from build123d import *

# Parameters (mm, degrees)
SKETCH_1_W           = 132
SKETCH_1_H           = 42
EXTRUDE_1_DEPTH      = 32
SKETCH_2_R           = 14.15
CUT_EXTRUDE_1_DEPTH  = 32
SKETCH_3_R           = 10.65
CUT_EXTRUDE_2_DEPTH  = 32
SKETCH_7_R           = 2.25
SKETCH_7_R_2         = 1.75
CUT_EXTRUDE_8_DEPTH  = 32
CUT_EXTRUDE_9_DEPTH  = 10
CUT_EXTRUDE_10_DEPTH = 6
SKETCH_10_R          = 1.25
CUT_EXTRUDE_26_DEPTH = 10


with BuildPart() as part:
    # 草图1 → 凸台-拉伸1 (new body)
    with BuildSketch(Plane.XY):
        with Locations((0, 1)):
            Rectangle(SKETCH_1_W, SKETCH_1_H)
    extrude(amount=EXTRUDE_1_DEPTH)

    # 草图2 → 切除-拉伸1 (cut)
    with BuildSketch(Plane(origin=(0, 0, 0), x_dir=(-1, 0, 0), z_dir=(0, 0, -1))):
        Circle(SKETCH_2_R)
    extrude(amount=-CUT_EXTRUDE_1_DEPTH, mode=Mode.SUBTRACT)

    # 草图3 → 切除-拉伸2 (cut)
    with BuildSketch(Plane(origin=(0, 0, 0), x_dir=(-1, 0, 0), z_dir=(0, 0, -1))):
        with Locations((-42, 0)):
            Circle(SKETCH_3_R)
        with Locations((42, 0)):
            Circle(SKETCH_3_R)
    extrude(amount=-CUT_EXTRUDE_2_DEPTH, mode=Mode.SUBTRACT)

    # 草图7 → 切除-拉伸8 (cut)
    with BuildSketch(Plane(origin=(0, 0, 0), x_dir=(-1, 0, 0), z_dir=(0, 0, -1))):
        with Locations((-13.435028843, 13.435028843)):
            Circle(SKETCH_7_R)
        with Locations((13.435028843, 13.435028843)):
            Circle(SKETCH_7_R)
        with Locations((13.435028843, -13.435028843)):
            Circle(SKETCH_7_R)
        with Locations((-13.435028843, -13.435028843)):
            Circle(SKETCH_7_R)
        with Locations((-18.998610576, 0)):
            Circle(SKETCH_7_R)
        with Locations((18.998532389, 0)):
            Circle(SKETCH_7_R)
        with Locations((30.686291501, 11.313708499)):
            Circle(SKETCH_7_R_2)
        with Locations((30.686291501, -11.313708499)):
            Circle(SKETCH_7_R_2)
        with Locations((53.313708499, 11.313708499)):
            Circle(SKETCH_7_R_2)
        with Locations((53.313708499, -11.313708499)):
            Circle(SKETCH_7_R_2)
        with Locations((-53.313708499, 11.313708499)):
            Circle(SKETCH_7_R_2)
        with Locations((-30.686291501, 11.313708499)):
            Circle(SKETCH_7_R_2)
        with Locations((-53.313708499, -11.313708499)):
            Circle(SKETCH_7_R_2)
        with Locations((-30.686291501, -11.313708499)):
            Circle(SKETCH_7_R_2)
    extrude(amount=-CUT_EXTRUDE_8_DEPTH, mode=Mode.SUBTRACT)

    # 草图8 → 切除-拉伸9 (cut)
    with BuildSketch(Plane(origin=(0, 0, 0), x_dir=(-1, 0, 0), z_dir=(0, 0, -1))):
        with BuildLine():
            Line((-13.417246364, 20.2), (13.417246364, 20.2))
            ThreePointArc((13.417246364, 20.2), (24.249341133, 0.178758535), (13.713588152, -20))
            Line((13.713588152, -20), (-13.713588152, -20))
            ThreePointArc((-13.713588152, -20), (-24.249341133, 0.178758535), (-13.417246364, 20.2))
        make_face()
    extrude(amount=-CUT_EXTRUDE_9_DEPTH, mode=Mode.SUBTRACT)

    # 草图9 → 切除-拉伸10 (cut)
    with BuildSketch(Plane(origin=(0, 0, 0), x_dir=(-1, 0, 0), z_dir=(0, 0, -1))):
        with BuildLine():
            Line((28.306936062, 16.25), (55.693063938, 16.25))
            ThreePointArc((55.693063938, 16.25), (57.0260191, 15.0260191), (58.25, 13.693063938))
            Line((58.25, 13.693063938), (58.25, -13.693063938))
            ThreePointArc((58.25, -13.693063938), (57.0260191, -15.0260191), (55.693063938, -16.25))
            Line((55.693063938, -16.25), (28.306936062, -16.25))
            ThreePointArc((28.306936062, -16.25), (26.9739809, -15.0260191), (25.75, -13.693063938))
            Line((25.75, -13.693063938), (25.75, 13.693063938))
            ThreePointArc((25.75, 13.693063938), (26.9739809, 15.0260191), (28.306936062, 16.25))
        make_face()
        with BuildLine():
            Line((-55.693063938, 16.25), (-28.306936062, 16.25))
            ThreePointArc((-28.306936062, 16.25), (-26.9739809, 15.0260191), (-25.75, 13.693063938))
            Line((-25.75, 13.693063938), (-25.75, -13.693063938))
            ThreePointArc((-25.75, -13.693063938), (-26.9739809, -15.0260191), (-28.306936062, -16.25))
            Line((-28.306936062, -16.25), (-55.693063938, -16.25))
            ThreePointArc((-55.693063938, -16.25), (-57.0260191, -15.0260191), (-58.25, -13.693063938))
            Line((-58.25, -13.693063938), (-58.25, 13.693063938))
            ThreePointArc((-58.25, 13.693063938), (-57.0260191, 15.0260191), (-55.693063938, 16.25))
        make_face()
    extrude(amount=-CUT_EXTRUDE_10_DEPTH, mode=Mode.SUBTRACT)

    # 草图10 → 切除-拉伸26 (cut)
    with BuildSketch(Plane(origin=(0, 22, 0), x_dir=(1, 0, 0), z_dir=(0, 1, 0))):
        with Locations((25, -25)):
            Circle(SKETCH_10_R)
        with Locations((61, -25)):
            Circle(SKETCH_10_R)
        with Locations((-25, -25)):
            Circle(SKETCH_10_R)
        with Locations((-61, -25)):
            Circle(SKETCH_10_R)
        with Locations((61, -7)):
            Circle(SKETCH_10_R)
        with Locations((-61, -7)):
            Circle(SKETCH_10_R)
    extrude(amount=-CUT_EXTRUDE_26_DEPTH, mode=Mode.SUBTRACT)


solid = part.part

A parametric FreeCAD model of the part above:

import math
import FreeCAD as App
import Part
import Sketcher
Q = App.Units.Quantity


def add_polygon(sketch, points):
    """Adds a closed chain of lines whose ends are joined by coincident constraints."""
    first, n = sketch.GeometryCount, len(points)
    for a, b in zip(points, points[1:] + points[:1]):
        sketch.addGeometry(Part.LineSegment(App.Vector(*a, 0), App.Vector(*b, 0)), False)
    for i in range(n):
        sketch.addConstraint(Sketcher.Constraint("Coincident", first + i, 2, first + (i + 1) % n, 1))

doc = App.newDocument("Part")
body = doc.addObject("PartDesign::Body", "Body")

# Sketch on XY plane
sketch1 = body.newObject("Sketcher::SketchObject", "Sketch")
sketch1.AttachmentSupport = (doc.getObject("XY_Plane"), [""])
sketch1.MapMode = "FlatFace"
add_polygon(sketch1, [(-66, 22), (-66, -20), (66, -20), (66, 22)])  # lines 0-3
sketch1.addConstraint([
    Sketcher.Constraint("Vertical", 0),
    Sketcher.Constraint("Horizontal", 1),
    Sketcher.Constraint("Vertical", 2),
    Sketcher.Constraint("Horizontal", 3),
    Sketcher.Constraint("DistanceX", 1, 1, 1, 2, Q("132 mm")),
    Sketcher.Constraint("DistanceY", 0, 2, 0, 1, Q("42 mm")),
    Sketcher.Constraint("DistanceX", 0, 2, -1, 1, Q("66 mm")),
    Sketcher.Constraint("DistanceY", 0, 2, -1, 1, Q("20 mm")),
])
pad1 = body.newObject("PartDesign::Pad", "Pad")
pad1.Profile = sketch1
pad1.Length = 32

# Sketch on XY plane
sketch2 = body.newObject("Sketcher::SketchObject", "Sketch001")
sketch2.AttachmentSupport = (doc.getObject("XY_Plane"), [""])
sketch2.MapMode = "FlatFace"
sketch2.addGeometry(Part.Circle(App.Vector(0, 0, 0), App.Vector(0, 0, 1), 14.15), False)
sketch2.addConstraint([
    Sketcher.Constraint("Coincident", 0, 3, -1, 1),
    Sketcher.Constraint("Diameter", 0, Q("28.3 mm")),
])
pocket1 = body.newObject("PartDesign::Pocket", "Pocket")
pocket1.Profile = sketch2
pocket1.Length = 32
pocket1.Reversed = True

# Sketch on XY plane
sketch3 = body.newObject("Sketcher::SketchObject", "Sketch002")
sketch3.AttachmentSupport = (doc.getObject("XY_Plane"), [""])
sketch3.MapMode = "FlatFace"
sketch3.addGeometry([
    Part.Circle(App.Vector(42, 0, 0), App.Vector(0, 0, 1), 10.65),
    Part.Circle(App.Vector(-42, 0, 0), App.Vector(0, 0, 1), 10.65),
], False)
sketch3.addConstraint([
    Sketcher.Constraint("Equal", 0, 1),
    Sketcher.Constraint("Symmetric", 0, 3, 1, 3, -1, 1),
    Sketcher.Constraint("PointOnObject", 0, 3, -1),
    Sketcher.Constraint("Diameter", 0, Q("21.3 mm")),
    Sketcher.Constraint("DistanceX", -1, 1, 0, 3, Q("42 mm")),
])
pocket2 = body.newObject("PartDesign::Pocket", "Pocket001")
pocket2.Profile = sketch3
pocket2.Length = 32
pocket2.Reversed = True

# Sketch on XY plane
sketch4 = body.newObject("Sketcher::SketchObject", "Sketch003")
sketch4.AttachmentSupport = (doc.getObject("XY_Plane"), [""])
sketch4.MapMode = "FlatFace"
sketch4.addGeometry([
    Part.Circle(App.Vector(13.435029, 13.435029, 0), App.Vector(0, 0, 1), 2.25),  # 0
    Part.Circle(App.Vector(-13.435029, 13.435029, 0), App.Vector(0, 0, 1), 2.25),  # 1
    Part.Circle(App.Vector(-13.435029, -13.435029, 0), App.Vector(0, 0, 1), 2.25),  # 2
    Part.Circle(App.Vector(13.435029, -13.435029, 0), App.Vector(0, 0, 1), 2.25),  # 3
    Part.Circle(App.Vector(18.998611, 0, 0), App.Vector(0, 0, 1), 2.25),  # 4
    Part.Circle(App.Vector(-18.998532, 0, 0), App.Vector(0, 0, 1), 2.25),  # 5
    Part.Circle(App.Vector(-30.686292, 11.313708, 0), App.Vector(0, 0, 1), 1.75),  # 6
    Part.Circle(App.Vector(-30.686292, -11.313708, 0), App.Vector(0, 0, 1), 1.75),  # 7
    Part.Circle(App.Vector(-53.313708, 11.313708, 0), App.Vector(0, 0, 1), 1.75),  # 8
    Part.Circle(App.Vector(-53.313708, -11.313708, 0), App.Vector(0, 0, 1), 1.75),  # 9
    Part.Circle(App.Vector(53.313708, 11.313708, 0), App.Vector(0, 0, 1), 1.75),  # 10
    Part.Circle(App.Vector(30.686292, 11.313708, 0), App.Vector(0, 0, 1), 1.75),  # 11
    Part.Circle(App.Vector(53.313708, -11.313708, 0), App.Vector(0, 0, 1), 1.75),  # 12
    Part.Circle(App.Vector(30.686292, -11.313708, 0), App.Vector(0, 0, 1), 1.75),  # 13
], False)
sketch4.addConstraint([
    Sketcher.Constraint("Equal", 0, 1),
    Sketcher.Constraint("Equal", 1, 2),
    Sketcher.Constraint("Equal", 2, 3),
    Sketcher.Constraint("Equal", 3, 4),
    Sketcher.Constraint("Equal", 4, 5),
    Sketcher.Constraint("Equal", 6, 7),
    Sketcher.Constraint("Equal", 7, 8),
    Sketcher.Constraint("Equal", 8, 9),
    Sketcher.Constraint("Equal", 9, 10),
    Sketcher.Constraint("Equal", 10, 11),
    Sketcher.Constraint("Equal", 11, 12),
    Sketcher.Constraint("Equal", 12, 13),
    Sketcher.Constraint("Symmetric", 0, 3, 2, 3, -1, 1),
    Sketcher.Constraint("Symmetric", 1, 3, 3, 3, -1, 1),
    Sketcher.Constraint("Symmetric", 9, 3, 10, 3, -1, 1),
    Sketcher.Constraint("Symmetric", 7, 3, 11, 3, -1, 1),
    Sketcher.Constraint("Symmetric", 8, 3, 12, 3, -1, 1),
    Sketcher.Constraint("Symmetric", 6, 3, 13, 3, -1, 1),
    Sketcher.Constraint("Symmetric", 0, 3, 1, 3, -2),
    Sketcher.Constraint("Symmetric", 8, 3, 10, 3, -2),
    Sketcher.Constraint("Symmetric", 6, 3, 11, 3, -2),
    Sketcher.Constraint("PointOnObject", 4, 3, -1),
    Sketcher.Constraint("PointOnObject", 5, 3, -1),
    Sketcher.Constraint("Horizontal", 6, 3, 8, 3),
    Sketcher.Constraint("Diameter", 0, Q("4.5 mm")),
    Sketcher.Constraint("Diameter", 6, Q("3.5 mm")),
    Sketcher.Constraint("DistanceX", -1, 1, 0, 3, Q("13.435029 mm")),
    Sketcher.Constraint("DistanceY", -1, 1, 0, 3, Q("13.435029 mm")),
    Sketcher.Constraint("DistanceX", -1, 1, 4, 3, Q("18.998611 mm")),
    Sketcher.Constraint("DistanceX", 6, 3, -1, 1, Q("30.686292 mm")),
    Sketcher.Constraint("DistanceY", -1, 1, 6, 3, Q("11.313708 mm")),
    Sketcher.Constraint("DistanceX", 8, 3, -1, 1, Q("53.313708 mm")),
    Sketcher.Constraint("DistanceX", 5, 3, 0, 3, Q("32.433561 mm")),
])
pocket3 = body.newObject("PartDesign::Pocket", "Pocket002")
pocket3.Profile = sketch4
pocket3.Length = 32
pocket3.Reversed = True

# Sketch on XY plane
sketch5 = body.newObject("Sketcher::SketchObject", "Sketch004")
sketch5.AttachmentSupport = (doc.getObject("XY_Plane"), [""])
sketch5.MapMode = "FlatFace"
sketch5.addGeometry([
    Part.LineSegment(App.Vector(-13.417246, 20.2, 0), App.Vector(13.417246, 20.2, 0)),
    Part.ArcOfCircle(Part.Circle(App.Vector(0, 0, 0), App.Vector(0, 0, 1), 24.25), math.radians(-55.56237), math.radians(56.407088)),
    Part.LineSegment(App.Vector(13.713588, -20, 0), App.Vector(-13.713588, -20, 0)),
    Part.ArcOfCircle(Part.Circle(App.Vector(0, 0, 0), App.Vector(0, 0, 1), 24.25), math.radians(123.592912), math.radians(235.56237)),
], False)
sketch5.addConstraint([
    Sketcher.Constraint("Coincident", 0, 2, 1, 2),
    Sketcher.Constraint("Coincident", 1, 1, 2, 1),
    Sketcher.Constraint("Coincident", 2, 2, 3, 2),
    Sketcher.Constraint("Coincident", 3, 1, 0, 1),
    Sketcher.Constraint("Horizontal", 0),
    Sketcher.Constraint("Horizontal", 2),
    Sketcher.Constraint("Coincident", 1, 3, -1, 1),
    Sketcher.Constraint("Coincident", 3, 3, -1, 1),
    Sketcher.Constraint("Equal", 1, 3),
    Sketcher.Constraint("Radius", 1, Q("24.25 mm")),
    Sketcher.Constraint("DistanceY", 1, 1, -1, 1, Q("20 mm")),
    Sketcher.Constraint("DistanceY", -1, 1, 0, 2, Q("20.2 mm")),
])
pocket4 = body.newObject("PartDesign::Pocket", "Pocket003")
pocket4.Profile = sketch5
pocket4.Length = 10
pocket4.Reversed = True

# Sketch on XY plane
sketch6 = body.newObject("Sketcher::SketchObject", "Sketch005")
sketch6.AttachmentSupport = (doc.getObject("XY_Plane"), [""])
sketch6.MapMode = "FlatFace"
sketch6.addGeometry([
    Part.LineSegment(App.Vector(-55.693064, 16.25, 0), App.Vector(-28.306936, 16.25, 0)),  # 0
    Part.ArcOfCircle(Part.Circle(App.Vector(-42, 0, 0), App.Vector(0, 0, 1), 21.25), math.radians(40.119167), math.radians(49.880833)),  # 1
    Part.LineSegment(App.Vector(-25.75, 13.693064, 0), App.Vector(-25.75, -13.693064, 0)),  # 2
    Part.ArcOfCircle(Part.Circle(App.Vector(-42, 0, 0), App.Vector(0, 0, 1), 21.25), math.radians(-49.880833), math.radians(-40.119167)),  # 3
    Part.LineSegment(App.Vector(-28.306936, -16.25, 0), App.Vector(-55.693064, -16.25, 0)),  # 4
    Part.ArcOfCircle(Part.Circle(App.Vector(-42, 0, 0), App.Vector(0, 0, 1), 21.25), math.radians(-139.880833), math.radians(-130.119167)),  # 5
    Part.LineSegment(App.Vector(-58.25, -13.693064, 0), App.Vector(-58.25, 13.693064, 0)),  # 6
    Part.ArcOfCircle(Part.Circle(App.Vector(-42, 0, 0), App.Vector(0, 0, 1), 21.25), math.radians(130.119167), math.radians(139.880833)),  # 7
    Part.LineSegment(App.Vector(28.306936, 16.25, 0), App.Vector(55.693064, 16.25, 0)),  # 8
    Part.ArcOfCircle(Part.Circle(App.Vector(42, 0, 0), App.Vector(0, 0, 1), 21.25), math.radians(40.119167), math.radians(49.880833)),  # 9
    Part.LineSegment(App.Vector(58.25, 13.693064, 0), App.Vector(58.25, -13.693064, 0)),  # 10
    Part.ArcOfCircle(Part.Circle(App.Vector(42, 0, 0), App.Vector(0, 0, 1), 21.25), math.radians(-49.880833), math.radians(-40.119167)),  # 11
    Part.LineSegment(App.Vector(55.693064, -16.25, 0), App.Vector(28.306936, -16.25, 0)),  # 12
    Part.ArcOfCircle(Part.Circle(App.Vector(42, 0, 0), App.Vector(0, 0, 1), 21.25), math.radians(-139.880833), math.radians(-130.119167)),  # 13
    Part.LineSegment(App.Vector(25.75, -13.693064, 0), App.Vector(25.75, 13.693064, 0)),  # 14
    Part.ArcOfCircle(Part.Circle(App.Vector(42, 0, 0), App.Vector(0, 0, 1), 21.25), math.radians(130.119167), math.radians(139.880833)),  # 15
], False)
sketch6.addConstraint([
    Sketcher.Constraint("Coincident", 0, 2, 1, 2),
    Sketcher.Constraint("Coincident", 1, 1, 2, 1),
    Sketcher.Constraint("Coincident", 2, 2, 3, 2),
    Sketcher.Constraint("Coincident", 3, 1, 4, 1),
    Sketcher.Constraint("Coincident", 4, 2, 5, 2),
    Sketcher.Constraint("Coincident", 5, 1, 6, 1),
    Sketcher.Constraint("Coincident", 6, 2, 7, 2),
    Sketcher.Constraint("Coincident", 7, 1, 0, 1),
    Sketcher.Constraint("Coincident", 8, 2, 9, 2),
    Sketcher.Constraint("Coincident", 9, 1, 10, 1),
    Sketcher.Constraint("Coincident", 10, 2, 11, 2),
    Sketcher.Constraint("Coincident", 11, 1, 12, 1),
    Sketcher.Constraint("Coincident", 12, 2, 13, 2),
    Sketcher.Constraint("Coincident", 13, 1, 14, 1),
    Sketcher.Constraint("Coincident", 14, 2, 15, 2),
    Sketcher.Constraint("Coincident", 15, 1, 8, 1),
    Sketcher.Constraint("Horizontal", 0),
    Sketcher.Constraint("Vertical", 2),
    Sketcher.Constraint("Horizontal", 4),
    Sketcher.Constraint("Vertical", 6),
    Sketcher.Constraint("Horizontal", 8),
    Sketcher.Constraint("Vertical", 10),
    Sketcher.Constraint("Horizontal", 12),
    Sketcher.Constraint("Vertical", 14),
    Sketcher.Constraint("Coincident", 3, 3, 1, 3),
    Sketcher.Constraint("Coincident", 5, 3, 1, 3),
    Sketcher.Constraint("Coincident", 7, 3, 1, 3),
    Sketcher.Constraint("Coincident", 11, 3, 9, 3),
    Sketcher.Constraint("Coincident", 13, 3, 9, 3),
    Sketcher.Constraint("Coincident", 15, 3, 9, 3),
    Sketcher.Constraint("Equal", 1, 3),
    Sketcher.Constraint("Equal", 3, 5),
    Sketcher.Constraint("Equal", 5, 7),
    Sketcher.Constraint("Equal", 7, 9),
    Sketcher.Constraint("Equal", 9, 11),
    Sketcher.Constraint("Equal", 11, 13),
    Sketcher.Constraint("Equal", 13, 15),
    Sketcher.Constraint("Symmetric", 1, 3, 9, 3, -1, 1),
    Sketcher.Constraint("Symmetric", 7, 1, 8, 2, -2),
    Sketcher.Constraint("Horizontal", 2, 2, 5, 1),
    Sketcher.Constraint("Horizontal", 6, 2, 9, 1),
    Sketcher.Constraint("Horizontal", 4, 2, 11, 1),
    Sketcher.Constraint("Horizontal", 10, 2, 13, 1),
    Sketcher.Constraint("Vertical", 0, 2, 3, 1),
    Sketcher.Constraint("Equal", 12, 2),
    Sketcher.Constraint("Radius", 1, Q("21.25 mm")),
    Sketcher.Constraint("DistanceX", 1, 3, -1, 1, Q("42 mm")),
    Sketcher.Constraint("DistanceY", -1, 1, 0, 2, Q("16.25 mm")),
])
pocket5 = body.newObject("PartDesign::Pocket", "Pocket004")
pocket5.Profile = sketch6
pocket5.Length = 6
pocket5.Reversed = True

# Sketch on XZ plane
sketch7 = body.newObject("Sketcher::SketchObject", "Sketch006")
sketch7.AttachmentSupport = (doc.getObject("XZ_Plane"), [""])
sketch7.MapMode = "FlatFace"
sketch7.AttachmentOffset = App.Placement(App.Vector(0, 0, -22), App.Rotation())
sketch7.addGeometry([
    Part.Circle(App.Vector(25, 25, 0), App.Vector(0, 0, 1), 1.25),  # 0
    Part.Circle(App.Vector(61, 25, 0), App.Vector(0, 0, 1), 1.25),  # 1
    Part.Circle(App.Vector(-25, 25, 0), App.Vector(0, 0, 1), 1.25),  # 2
    Part.Circle(App.Vector(-61, 25, 0), App.Vector(0, 0, 1), 1.25),  # 3
    Part.Circle(App.Vector(61, 7, 0), App.Vector(0, 0, 1), 1.25),  # 4
    Part.Circle(App.Vector(-61, 7, 0), App.Vector(0, 0, 1), 1.25),  # 5
], False)
sketch7.addConstraint([
    Sketcher.Constraint("Equal", 0, 1),
    Sketcher.Constraint("Equal", 1, 2),
    Sketcher.Constraint("Equal", 2, 3),
    Sketcher.Constraint("Equal", 3, 4),
    Sketcher.Constraint("Equal", 4, 5),
    Sketcher.Constraint("Symmetric", 0, 3, 2, 3, -2),
    Sketcher.Constraint("Symmetric", 1, 3, 3, 3, -2),
    Sketcher.Constraint("Symmetric", 4, 3, 5, 3, -2),
    Sketcher.Constraint("Horizontal", 0, 3, 1, 3),
    Sketcher.Constraint("Vertical", 1, 3, 4, 3),
    Sketcher.Constraint("Diameter", 0, Q("2.5 mm")),
    Sketcher.Constraint("DistanceX", -1, 1, 0, 3, Q("25 mm")),
    Sketcher.Constraint("DistanceY", -1, 1, 0, 3, Q("25 mm")),
    Sketcher.Constraint("DistanceX", -1, 1, 1, 3, Q("61 mm")),
    Sketcher.Constraint("DistanceY", -1, 1, 4, 3, Q("7 mm")),
])
pocket6 = body.newObject("PartDesign::Pocket", "Pocket005")
pocket6.Profile = sketch7
pocket6.Length = 10
pocket6.Reversed = True

doc.recompute()
